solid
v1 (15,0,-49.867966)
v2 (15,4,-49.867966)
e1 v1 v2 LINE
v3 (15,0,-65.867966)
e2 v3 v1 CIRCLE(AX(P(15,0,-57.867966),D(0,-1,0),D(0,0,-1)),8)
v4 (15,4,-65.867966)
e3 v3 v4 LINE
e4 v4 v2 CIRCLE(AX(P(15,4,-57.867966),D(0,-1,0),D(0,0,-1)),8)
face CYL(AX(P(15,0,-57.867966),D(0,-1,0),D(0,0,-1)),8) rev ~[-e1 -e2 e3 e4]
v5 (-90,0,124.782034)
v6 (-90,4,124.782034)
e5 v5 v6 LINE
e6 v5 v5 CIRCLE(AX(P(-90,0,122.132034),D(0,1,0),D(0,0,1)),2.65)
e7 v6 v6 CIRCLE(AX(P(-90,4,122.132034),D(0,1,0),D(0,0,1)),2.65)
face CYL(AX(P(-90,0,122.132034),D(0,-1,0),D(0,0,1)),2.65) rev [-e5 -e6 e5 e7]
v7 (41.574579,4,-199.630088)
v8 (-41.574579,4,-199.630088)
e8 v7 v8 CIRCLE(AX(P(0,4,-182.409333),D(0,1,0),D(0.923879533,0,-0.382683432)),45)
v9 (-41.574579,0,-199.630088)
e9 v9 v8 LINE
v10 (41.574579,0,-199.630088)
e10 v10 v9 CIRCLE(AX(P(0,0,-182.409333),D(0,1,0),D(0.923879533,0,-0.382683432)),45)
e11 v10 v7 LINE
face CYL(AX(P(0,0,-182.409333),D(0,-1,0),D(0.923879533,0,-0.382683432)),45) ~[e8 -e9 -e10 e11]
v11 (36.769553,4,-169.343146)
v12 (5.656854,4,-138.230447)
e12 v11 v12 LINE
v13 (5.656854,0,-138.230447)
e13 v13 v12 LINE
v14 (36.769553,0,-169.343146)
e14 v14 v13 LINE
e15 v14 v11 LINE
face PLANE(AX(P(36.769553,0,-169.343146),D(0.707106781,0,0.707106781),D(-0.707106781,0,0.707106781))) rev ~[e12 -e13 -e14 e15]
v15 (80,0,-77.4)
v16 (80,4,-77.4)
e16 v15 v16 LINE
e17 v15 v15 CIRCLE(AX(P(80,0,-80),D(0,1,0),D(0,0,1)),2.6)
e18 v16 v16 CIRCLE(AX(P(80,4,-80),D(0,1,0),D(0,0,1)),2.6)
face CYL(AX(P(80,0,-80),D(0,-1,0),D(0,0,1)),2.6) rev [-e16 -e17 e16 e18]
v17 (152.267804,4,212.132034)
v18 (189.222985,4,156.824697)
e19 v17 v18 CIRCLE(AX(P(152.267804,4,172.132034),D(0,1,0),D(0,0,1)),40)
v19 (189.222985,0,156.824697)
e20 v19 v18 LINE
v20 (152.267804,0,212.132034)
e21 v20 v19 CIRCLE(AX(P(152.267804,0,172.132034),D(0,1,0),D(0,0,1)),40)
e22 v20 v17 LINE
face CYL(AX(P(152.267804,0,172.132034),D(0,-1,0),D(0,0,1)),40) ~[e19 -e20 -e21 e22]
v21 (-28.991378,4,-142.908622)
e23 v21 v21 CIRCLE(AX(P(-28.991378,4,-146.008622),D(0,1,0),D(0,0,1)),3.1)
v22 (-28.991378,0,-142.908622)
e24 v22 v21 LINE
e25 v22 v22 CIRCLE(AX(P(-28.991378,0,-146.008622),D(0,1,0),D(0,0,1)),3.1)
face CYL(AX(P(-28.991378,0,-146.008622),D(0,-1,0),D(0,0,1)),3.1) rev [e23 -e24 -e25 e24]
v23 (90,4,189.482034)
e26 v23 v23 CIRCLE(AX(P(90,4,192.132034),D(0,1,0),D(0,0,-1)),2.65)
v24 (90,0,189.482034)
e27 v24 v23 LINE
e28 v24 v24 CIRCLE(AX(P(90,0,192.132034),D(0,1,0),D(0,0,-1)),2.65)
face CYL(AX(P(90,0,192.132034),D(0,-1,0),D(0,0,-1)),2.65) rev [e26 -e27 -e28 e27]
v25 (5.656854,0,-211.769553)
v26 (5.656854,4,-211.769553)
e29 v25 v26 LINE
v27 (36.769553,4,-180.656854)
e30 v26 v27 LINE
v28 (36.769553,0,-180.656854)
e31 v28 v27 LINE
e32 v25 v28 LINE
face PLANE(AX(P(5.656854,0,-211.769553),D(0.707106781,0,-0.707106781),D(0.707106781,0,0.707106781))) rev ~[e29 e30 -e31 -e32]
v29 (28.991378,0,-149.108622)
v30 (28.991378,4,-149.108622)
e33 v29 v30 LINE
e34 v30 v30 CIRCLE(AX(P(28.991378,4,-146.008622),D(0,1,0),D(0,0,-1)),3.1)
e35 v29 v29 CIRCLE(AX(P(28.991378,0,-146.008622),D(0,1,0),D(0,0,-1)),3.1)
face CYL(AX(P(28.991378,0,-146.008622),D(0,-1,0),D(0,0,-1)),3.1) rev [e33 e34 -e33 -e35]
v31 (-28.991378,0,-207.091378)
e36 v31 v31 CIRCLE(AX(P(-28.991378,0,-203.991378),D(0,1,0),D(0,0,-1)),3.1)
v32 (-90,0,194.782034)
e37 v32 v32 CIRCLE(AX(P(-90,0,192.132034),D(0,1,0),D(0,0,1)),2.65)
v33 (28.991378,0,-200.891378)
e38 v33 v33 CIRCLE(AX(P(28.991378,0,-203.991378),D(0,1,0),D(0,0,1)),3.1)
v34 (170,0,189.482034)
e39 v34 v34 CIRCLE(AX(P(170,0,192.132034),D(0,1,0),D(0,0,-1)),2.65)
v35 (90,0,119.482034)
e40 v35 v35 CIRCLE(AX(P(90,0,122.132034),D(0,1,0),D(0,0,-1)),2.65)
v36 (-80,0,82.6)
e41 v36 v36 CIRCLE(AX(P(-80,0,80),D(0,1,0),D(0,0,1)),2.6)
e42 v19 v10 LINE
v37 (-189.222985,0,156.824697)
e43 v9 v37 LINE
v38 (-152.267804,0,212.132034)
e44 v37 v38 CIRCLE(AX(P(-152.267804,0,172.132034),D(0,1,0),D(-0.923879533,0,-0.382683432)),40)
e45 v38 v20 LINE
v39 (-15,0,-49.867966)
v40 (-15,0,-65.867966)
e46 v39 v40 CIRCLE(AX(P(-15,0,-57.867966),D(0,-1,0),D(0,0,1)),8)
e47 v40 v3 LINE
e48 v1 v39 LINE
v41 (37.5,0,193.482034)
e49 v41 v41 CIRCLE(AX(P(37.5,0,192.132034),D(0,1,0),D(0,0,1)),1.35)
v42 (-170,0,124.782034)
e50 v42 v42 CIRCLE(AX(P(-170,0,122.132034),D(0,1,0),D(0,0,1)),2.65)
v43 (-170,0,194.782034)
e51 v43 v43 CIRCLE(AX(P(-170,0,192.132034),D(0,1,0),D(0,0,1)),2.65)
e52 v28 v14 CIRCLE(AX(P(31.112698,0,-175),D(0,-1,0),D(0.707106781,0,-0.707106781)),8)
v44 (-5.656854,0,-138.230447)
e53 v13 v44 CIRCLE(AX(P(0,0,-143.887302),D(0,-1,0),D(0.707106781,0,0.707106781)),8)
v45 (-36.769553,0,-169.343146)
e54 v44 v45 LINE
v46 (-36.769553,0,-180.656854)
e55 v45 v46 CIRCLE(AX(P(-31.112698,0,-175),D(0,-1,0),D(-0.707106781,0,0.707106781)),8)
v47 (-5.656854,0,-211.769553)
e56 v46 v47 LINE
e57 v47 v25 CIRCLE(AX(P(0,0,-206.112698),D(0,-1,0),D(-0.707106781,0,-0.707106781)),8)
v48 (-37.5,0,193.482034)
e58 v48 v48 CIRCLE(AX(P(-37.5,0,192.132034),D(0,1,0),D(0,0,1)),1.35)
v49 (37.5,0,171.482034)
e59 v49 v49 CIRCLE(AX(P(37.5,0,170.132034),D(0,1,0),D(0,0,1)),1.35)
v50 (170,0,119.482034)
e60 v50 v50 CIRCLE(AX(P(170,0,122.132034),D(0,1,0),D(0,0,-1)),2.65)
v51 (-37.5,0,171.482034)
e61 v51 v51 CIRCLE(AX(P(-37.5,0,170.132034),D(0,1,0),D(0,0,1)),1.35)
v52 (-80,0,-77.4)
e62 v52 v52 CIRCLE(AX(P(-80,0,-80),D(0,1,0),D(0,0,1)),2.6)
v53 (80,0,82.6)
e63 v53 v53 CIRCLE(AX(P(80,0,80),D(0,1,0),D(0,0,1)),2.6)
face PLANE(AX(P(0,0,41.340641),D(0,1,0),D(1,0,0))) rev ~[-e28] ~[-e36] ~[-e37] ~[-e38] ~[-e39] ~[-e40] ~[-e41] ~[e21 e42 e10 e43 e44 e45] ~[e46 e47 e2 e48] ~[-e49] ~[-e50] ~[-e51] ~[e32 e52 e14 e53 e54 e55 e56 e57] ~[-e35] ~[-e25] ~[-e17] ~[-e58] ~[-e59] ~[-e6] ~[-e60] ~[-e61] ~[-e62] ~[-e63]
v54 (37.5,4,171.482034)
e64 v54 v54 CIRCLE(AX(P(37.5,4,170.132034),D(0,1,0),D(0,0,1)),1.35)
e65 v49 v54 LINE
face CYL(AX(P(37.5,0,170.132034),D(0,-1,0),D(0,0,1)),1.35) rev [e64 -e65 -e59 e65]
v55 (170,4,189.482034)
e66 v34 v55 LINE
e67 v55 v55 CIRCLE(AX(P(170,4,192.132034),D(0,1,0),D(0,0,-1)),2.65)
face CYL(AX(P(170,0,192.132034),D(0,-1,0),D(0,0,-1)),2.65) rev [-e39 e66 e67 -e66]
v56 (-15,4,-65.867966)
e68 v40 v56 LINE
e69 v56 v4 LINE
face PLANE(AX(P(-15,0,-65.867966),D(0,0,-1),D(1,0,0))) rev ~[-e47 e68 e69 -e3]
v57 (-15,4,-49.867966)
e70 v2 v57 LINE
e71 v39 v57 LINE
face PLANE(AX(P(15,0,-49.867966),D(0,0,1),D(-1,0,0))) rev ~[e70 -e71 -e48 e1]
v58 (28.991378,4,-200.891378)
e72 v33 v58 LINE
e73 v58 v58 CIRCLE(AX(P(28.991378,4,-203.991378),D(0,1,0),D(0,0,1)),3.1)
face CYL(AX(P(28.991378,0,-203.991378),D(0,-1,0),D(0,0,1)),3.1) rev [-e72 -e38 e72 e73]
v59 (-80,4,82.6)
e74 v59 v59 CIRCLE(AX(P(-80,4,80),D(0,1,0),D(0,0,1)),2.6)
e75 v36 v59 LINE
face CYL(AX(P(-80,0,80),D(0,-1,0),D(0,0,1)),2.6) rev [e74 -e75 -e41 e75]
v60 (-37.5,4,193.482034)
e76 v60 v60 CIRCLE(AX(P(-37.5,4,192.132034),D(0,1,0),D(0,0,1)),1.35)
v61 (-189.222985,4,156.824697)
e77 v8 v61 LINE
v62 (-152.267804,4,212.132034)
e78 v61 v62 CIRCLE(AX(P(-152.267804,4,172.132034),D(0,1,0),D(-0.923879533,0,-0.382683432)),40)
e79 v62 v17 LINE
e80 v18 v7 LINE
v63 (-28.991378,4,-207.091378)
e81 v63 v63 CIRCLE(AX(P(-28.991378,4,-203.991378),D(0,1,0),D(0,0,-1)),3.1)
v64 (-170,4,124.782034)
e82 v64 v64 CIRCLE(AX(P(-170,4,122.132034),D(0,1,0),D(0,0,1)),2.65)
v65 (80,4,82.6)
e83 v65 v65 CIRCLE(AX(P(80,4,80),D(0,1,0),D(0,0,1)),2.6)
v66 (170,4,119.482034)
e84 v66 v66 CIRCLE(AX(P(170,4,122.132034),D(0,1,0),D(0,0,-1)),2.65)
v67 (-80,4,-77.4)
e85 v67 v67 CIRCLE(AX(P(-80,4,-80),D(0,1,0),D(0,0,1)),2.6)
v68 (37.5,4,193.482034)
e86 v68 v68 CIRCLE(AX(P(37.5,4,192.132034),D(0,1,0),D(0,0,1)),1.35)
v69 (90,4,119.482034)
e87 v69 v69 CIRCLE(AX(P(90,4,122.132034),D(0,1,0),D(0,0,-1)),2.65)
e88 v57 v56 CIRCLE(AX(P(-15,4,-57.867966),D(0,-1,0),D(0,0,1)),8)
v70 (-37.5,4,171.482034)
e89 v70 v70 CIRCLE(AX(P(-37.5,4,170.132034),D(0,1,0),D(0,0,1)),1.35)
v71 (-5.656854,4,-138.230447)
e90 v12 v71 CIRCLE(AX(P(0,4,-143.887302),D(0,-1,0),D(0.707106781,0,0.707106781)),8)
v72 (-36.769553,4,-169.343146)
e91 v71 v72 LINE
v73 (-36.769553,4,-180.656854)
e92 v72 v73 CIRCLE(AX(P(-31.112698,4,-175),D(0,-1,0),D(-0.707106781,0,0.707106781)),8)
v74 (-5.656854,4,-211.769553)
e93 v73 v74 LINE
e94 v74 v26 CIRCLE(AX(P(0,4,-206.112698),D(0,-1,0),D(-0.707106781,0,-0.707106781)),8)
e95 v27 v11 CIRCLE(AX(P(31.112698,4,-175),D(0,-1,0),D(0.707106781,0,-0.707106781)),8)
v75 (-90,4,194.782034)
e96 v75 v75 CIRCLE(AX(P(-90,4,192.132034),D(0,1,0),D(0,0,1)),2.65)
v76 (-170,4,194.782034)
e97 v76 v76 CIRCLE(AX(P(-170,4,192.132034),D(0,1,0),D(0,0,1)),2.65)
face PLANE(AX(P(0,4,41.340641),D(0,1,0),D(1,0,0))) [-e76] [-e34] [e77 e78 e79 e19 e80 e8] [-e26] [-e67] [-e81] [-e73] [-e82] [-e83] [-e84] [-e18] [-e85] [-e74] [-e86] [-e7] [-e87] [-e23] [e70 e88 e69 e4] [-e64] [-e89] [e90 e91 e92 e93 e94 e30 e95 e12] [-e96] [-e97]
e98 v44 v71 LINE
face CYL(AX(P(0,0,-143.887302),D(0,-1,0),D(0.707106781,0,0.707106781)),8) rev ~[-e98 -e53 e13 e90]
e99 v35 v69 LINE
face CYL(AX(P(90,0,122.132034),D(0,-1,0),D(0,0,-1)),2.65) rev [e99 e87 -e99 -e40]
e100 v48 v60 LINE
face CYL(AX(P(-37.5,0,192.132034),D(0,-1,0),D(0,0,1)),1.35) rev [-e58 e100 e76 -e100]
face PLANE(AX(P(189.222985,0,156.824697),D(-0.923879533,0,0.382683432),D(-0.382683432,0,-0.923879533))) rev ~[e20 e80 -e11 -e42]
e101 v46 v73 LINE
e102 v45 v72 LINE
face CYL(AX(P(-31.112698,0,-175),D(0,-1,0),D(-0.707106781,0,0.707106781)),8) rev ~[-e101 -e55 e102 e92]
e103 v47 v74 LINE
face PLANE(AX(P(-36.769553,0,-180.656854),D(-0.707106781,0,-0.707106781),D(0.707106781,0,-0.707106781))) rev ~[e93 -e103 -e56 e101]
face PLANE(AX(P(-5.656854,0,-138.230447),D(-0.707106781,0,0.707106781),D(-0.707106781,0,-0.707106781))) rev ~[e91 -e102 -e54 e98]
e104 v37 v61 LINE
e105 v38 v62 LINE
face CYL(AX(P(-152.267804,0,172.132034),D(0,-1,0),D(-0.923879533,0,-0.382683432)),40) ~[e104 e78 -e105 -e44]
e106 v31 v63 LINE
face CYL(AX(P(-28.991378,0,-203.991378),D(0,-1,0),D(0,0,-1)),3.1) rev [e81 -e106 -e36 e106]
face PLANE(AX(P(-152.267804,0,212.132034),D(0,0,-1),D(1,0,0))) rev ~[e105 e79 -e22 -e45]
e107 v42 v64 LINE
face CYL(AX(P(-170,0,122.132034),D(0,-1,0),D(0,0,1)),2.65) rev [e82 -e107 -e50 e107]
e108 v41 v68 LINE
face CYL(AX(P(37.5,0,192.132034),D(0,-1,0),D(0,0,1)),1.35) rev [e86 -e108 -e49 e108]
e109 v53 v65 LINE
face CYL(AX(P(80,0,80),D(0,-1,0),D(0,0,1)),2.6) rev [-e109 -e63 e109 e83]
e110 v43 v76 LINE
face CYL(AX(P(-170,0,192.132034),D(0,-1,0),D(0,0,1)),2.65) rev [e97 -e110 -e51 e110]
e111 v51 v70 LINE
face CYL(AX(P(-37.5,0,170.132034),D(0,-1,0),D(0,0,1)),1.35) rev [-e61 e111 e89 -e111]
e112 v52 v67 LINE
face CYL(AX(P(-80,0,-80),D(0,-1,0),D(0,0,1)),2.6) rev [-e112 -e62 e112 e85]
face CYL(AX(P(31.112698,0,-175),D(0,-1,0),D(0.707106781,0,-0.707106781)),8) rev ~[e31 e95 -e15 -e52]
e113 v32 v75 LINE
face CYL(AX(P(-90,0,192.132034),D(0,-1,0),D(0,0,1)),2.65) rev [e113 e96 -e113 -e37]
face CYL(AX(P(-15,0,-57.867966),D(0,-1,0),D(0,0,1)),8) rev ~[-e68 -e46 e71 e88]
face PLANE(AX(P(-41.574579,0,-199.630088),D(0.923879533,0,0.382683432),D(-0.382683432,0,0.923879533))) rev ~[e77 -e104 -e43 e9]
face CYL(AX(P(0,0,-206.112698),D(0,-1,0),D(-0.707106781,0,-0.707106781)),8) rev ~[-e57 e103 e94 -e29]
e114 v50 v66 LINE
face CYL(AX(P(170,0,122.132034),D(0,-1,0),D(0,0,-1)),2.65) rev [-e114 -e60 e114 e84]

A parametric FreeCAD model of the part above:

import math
import FreeCAD as App
import Part
import Sketcher
Q = App.Units.Quantity

doc = App.newDocument("Part")
body = doc.addObject("PartDesign::Body", "Body")

# Sketch on XZ plane
sketch1 = body.newObject("Sketcher::SketchObject", "Sketch")
sketch1.AttachmentSupport = (doc.getObject("XZ_Plane"), [""])
sketch1.MapMode = "FlatFace"
sketch1.addGeometry([
    Part.LineSegment(App.Vector(-41.6, -199.6, 0), App.Vector(-189.2, 156.8, 0)),  # 0
    Part.ArcOfCircle(Part.Circle(App.Vector(-152.3, 172.1, 0), App.Vector(0, 0, 1), 40), math.radians(90), math.radians(202)),  # 1
    Part.LineSegment(App.Vector(-152.3, 212.1, 0), App.Vector(152.3, 212.1, 0)),  # 2
    Part.ArcOfCircle(Part.Circle(App.Vector(152.3, 172.1, 0), App.Vector(0, 0, 1), 40), math.radians(-22), math.radians(90)),  # 3
    Part.LineSegment(App.Vector(189.2, 156.8, 0), App.Vector(41.6, -199.6, 0)),  # 4
    Part.ArcOfCircle(Part.Circle(App.Vector(0, -182.4, 0), App.Vector(0, 0, 1), 45), math.radians(-157), math.radians(-23)),  # 5
    Part.Circle(App.Vector(-170, 192.1, 0), App.Vector(0, 0, 1), 2.6),  # 6
    Part.Circle(App.Vector(-90, 192.1, 0), App.Vector(0, 0, 1), 2.6),  # 7
    Part.Circle(App.Vector(-170, 122.1, 0), App.Vector(0, 0, 1), 2.6),  # 8
    Part.Circle(App.Vector(-90, 122.1, 0), App.Vector(0, 0, 1), 2.6),  # 9
    Part.Circle(App.Vector(-37.5, 192.1, 0), App.Vector(0, 0, 1), 1.4),  # 10
    Part.Circle(App.Vector(-37.5, 170.1, 0), App.Vector(0, 0, 1), 1.4),  # 11
    Part.Circle(App.Vector(-80, 80, 0), App.Vector(0, 0, 1), 2.6),  # 12
    Part.Circle(App.Vector(37.5, 192.1, 0), App.Vector(0, 0, 1), 1.4),  # 13
    Part.Circle(App.Vector(37.5, 170.1, 0), App.Vector(0, 0, 1), 1.4),  # 14
    Part.Circle(App.Vector(90, 192.1, 0), App.Vector(0, 0, 1), 2.6),  # 15
    Part.Circle(App.Vector(170, 192.1, 0), App.Vector(0, 0, 1), 2.6),  # 16
    Part.Circle(App.Vector(90, 122.1, 0), App.Vector(0, 0, 1), 2.6),  # 17
    Part.Circle(App.Vector(170, 122.1, 0), App.Vector(0, 0, 1), 2.6),  # 18
    Part.Circle(App.Vector(80, 80, 0), App.Vector(0, 0, 1), 2.6),  # 19
    Part.Circle(App.Vector(-80, -80, 0), App.Vector(0, 0, 1), 2.6),  # 20
    Part.Circle(App.Vector(-29, -146, 0), App.Vector(0, 0, 1), 3.1),  # 21
    Part.Circle(App.Vector(-29, -204, 0), App.Vector(0, 0, 1), 3.1),  # 22
    Part.ArcOfCircle(Part.Circle(App.Vector(-15, -57.9, 0), App.Vector(0, 0, 1), 8), math.radians(90), math.radians(270)),  # 23
    Part.LineSegment(App.Vector(-15, -65.9, 0), App.Vector(15, -65.9, 0)),  # 24
    Part.ArcOfCircle(Part.Circle(App.Vector(15, -57.9, 0), App.Vector(0, 0, 1), 8), math.radians(-90), math.radians(90)),  # 25
    Part.LineSegment(App.Vector(15, -49.9, 0), App.Vector(-15, -49.9, 0)),  # 26
    Part.Circle(App.Vector(80, -80, 0), App.Vector(0, 0, 1), 2.6),  # 27
    Part.Circle(App.Vector(29, -146, 0), App.Vector(0, 0, 1), 3.1),  # 28
    Part.ArcOfCircle(Part.Circle(App.Vector(-31.1, -175, 0), App.Vector(0, 0, 1), 8), math.radians(135), math.radians(225)),  # 29
    Part.LineSegment(App.Vector(-36.8, -180.7, 0), App.Vector(-5.7, -211.8, 0)),  # 30
    Part.ArcOfCircle(Part.Circle(App.Vector(0, -206.1, 0), App.Vector(0, 0, 1), 8), math.radians(-135), math.radians(-45)),  # 31
    Part.LineSegment(App.Vector(5.7, -211.8, 0), App.Vector(36.8, -180.7, 0)),  # 32
    Part.ArcOfCircle(Part.Circle(App.Vector(31.1, -175, 0), App.Vector(0, 0, 1), 8), math.radians(-45), math.radians(45)),  # 33
    Part.LineSegment(App.Vector(36.8, -169.3, 0), App.Vector(5.7, -138.2, 0)),  # 34
    Part.ArcOfCircle(Part.Circle(App.Vector(0, -143.9, 0), App.Vector(0, 0, 1), 8), math.radians(45), math.radians(135)),  # 35
    Part.LineSegment(App.Vector(-5.7, -138.2, 0), App.Vector(-36.8, -169.3, 0)),  # 36
    Part.Circle(App.Vector(29, -204, 0), App.Vector(0, 0, 1), 3.1),  # 37
], False)
sketch1.addConstraint([
    Sketcher.Constraint("Tangent", 0, 2, 1, 2),
    Sketcher.Constraint("Tangent", 1, 1, 2, 1),
    Sketcher.Constraint("Tangent", 2, 2, 3, 2),
    Sketcher.Constraint("Tangent", 3, 1, 4, 1),
    Sketcher.Constraint("Tangent", 4, 2, 5, 2),
    Sketcher.Constraint("Tangent", 5, 1, 0, 1),
    Sketcher.Constraint("Tangent", 23, 2, 24, 1),
    Sketcher.Constraint("Tangent", 24, 2, 25, 1),
    Sketcher.Constraint("Tangent", 25, 2, 26, 1),
    Sketcher.Constraint("Tangent", 26, 2, 23, 1),
    Sketcher.Constraint("Tangent", 29, 2, 30, 1),
    Sketcher.Constraint("Tangent", 30, 2, 31, 1),
    Sketcher.Constraint("Tangent", 31, 2, 32, 1),
    Sketcher.Constraint("Tangent", 32, 2, 33, 1),
    Sketcher.Constraint("Tangent", 33, 2, 34, 1),
    Sketcher.Constraint("Tangent", 34, 2, 35, 1),
    Sketcher.Constraint("Tangent", 35, 2, 36, 1),
    Sketcher.Constraint("Tangent", 36, 2, 29, 1),
    Sketcher.Constraint("Horizontal", 2),
    Sketcher.Constraint("Horizontal", 24),
    Sketcher.Constraint("Horizontal", 26),
    Sketcher.Constraint("Equal", 1, 3),
    Sketcher.Constraint("Equal", 6, 7),
    Sketcher.Constraint("Equal", 7, 8),
    Sketcher.Constraint("Equal", 8, 9),
    Sketcher.Constraint("Equal", 10, 11),
    Sketcher.Constraint("Equal", 11, 13),
    Sketcher.Constraint("Equal", 13, 14),
    Sketcher.Constraint("Equal", 9, 15),
    Sketcher.Constraint("Equal", 15, 16),
    Sketcher.Constraint("Equal", 16, 17),
    Sketcher.Constraint("Equal", 17, 18),
    Sketcher.Constraint("Equal", 12, 19),
    Sketcher.Constraint("Equal", 19, 20),
    Sketcher.Constraint("Equal", 21, 22),
    Sketcher.Constraint("Equal", 20, 27),
    Sketcher.Constraint("Equal", 22, 28),
    Sketcher.Constraint("Equal", 25, 29),
    Sketcher.Constraint("Equal", 29, 31),
    Sketcher.Constraint("Equal", 31, 33),
    Sketcher.Constraint("Equal", 33, 35),
    Sketcher.Constraint("Equal", 28, 37),
    Sketcher.Constraint("Symmetric", 19, 3, 20, 3, -1, 1),
    Sketcher.Constraint("Symmetric", 12, 3, 27, 3, -1, 1),
    Sketcher.Constraint("Symmetric", 10, 3, 13, 3, -2),
    Sketcher.Constraint("Symmetric", 11, 3, 14, 3, -2),
    Sketcher.Constraint("Symmetric", 7, 3, 15, 3, -2),
    Sketcher.Constraint("Symmetric", 6, 3, 16, 3, -2),
    Sketcher.Constraint("Symmetric", 9, 3, 17, 3, -2),
    Sketcher.Constraint("Symmetric", 8, 3, 18, 3, -2),
    Sketcher.Constraint("Symmetric", 12, 3, 19, 3, -2),
    Sketcher.Constraint("Symmetric", 21, 3, 28, 3, -2),
    Sketcher.Constraint("Symmetric", 29, 3, 33, 3, -2),
    Sketcher.Constraint("Symmetric", 22, 3, 37, 3, -2),
    Sketcher.Constraint("Symmetric", 0, 2, 3, 1, -2),
    Sketcher.Constraint("PointOnObject", 31, 3, -2),
    Sketcher.Constraint("PointOnObject", 35, 3, -2),
    Sketcher.Constraint("Perpendicular", 30, 32),
    Sketcher.Constraint("Perpendicular", 32, 34),
    Sketcher.Constraint("Horizontal", 6, 3, 7, 3),
    Sketcher.Constraint("Horizontal", 8, 3, 9, 3),
    Sketcher.Constraint("Horizontal", 7, 3, 10, 3),
    Sketcher.Constraint("Vertical", 6, 3, 8, 3),
    Sketcher.Constraint("Vertical", 7, 3, 9, 3),
    Sketcher.Constraint("Vertical", 10, 3, 11, 3),
    Sketcher.Constraint("Vertical", 21, 3, 22, 3),
    Sketcher.Constraint("Radius", 1, 40.0),
    Sketcher.Constraint("Radius", 5, 45.0),
    Sketcher.Constraint("Radius", 23, 8.0),
    Sketcher.Constraint("Diameter", 6, 5.3),
    Sketcher.Constraint("Diameter", 10, 2.7),
    Sketcher.Constraint("Diameter", 12, 5.2),
    Sketcher.Constraint("Diameter", 21, 6.2),
    Sketcher.Constraint("DistanceX", 24, 1, 24, 2, 30.0),
    Sketcher.Constraint("Distance", 30, 44.0),
    Sketcher.Constraint("DistanceX", 6, 3, -1, 1, 170.0),
    Sketcher.Constraint("DistanceX", 7, 3, -1, 1, 90.0),
    Sketcher.Constraint("DistanceX", 12, 3, -1, 1, 80.0),
    Sketcher.Constraint("DistanceY", -1, 1, 12, 3, 80.0),
    Sketcher.Constraint("DistanceX", 23, 3, -1, 1, 15.0),
    Sketcher.Constraint("DistanceY", 29, 3, -1, 1, 175.0),
    Sketcher.Constraint("Angle", 0, Q("112.5 deg")),
    Sketcher.Constraint("DistanceY", 1, 3, 6, 3, 20.0),
    Sketcher.Constraint("DistanceY", 8, 3, 1, 3, 50.0),
    Sketcher.Constraint("DistanceY", 11, 3, 10, 3, 22.0),
    Sketcher.Constraint("DistanceX", 10, 3, 13, 3, 75.0),
    Sketcher.Constraint("DistanceX", 37, 3, 4, 2, 12.583201),
    Sketcher.Constraint("Distance", 0, 385.823879),
    Sketcher.Constraint("DistanceY", 21, 3, -1, 1, 146.008622),
    Sketcher.Constraint("DistanceY", 22, 3, -1, 1, 203.991378),
    Sketcher.Constraint("DistanceY", 5, 3, 21, 3, 36.400711),
    Sketcher.Constraint("DistanceY", 23, 3, -1, 1, 57.867966),
])
pad1 = body.newObject("PartDesign::Pad", "Pad")
pad1.Profile = sketch1
pad1.Length = 4
pad1.Reversed = True

doc.recompute()
